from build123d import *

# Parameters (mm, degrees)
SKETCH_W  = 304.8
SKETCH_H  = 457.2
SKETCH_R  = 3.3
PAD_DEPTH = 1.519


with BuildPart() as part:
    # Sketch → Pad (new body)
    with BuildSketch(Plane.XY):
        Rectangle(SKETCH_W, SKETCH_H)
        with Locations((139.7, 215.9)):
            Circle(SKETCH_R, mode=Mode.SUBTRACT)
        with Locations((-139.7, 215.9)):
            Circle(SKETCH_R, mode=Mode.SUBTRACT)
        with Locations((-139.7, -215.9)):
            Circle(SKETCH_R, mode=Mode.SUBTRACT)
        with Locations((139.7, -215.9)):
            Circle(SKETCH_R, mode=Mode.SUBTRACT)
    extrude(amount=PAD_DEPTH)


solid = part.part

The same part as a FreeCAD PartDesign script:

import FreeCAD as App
import Part
import Sketcher
from FreeCAD import Vector
Q = App.Units.Quantity


def add_polygon(sketch, points):
    """Adds a closed chain of lines whose ends are joined by coincident constraints."""
    first, n = sketch.GeometryCount, len(points)
    for a, b in zip(points, points[1:] + points[:1]):
        sketch.addGeometry(Part.LineSegment(App.Vector(*a, 0), App.Vector(*b, 0)), False)
    for i in range(n):
        sketch.addConstraint(Sketcher.Constraint("Coincident", first + i, 2, first + (i + 1) % n, 1))

doc = App.newDocument("Part")
body = doc.addObject("PartDesign::Body", "Body")

# Sketch on XY plane
sketch1 = body.newObject("Sketcher::SketchObject", "Sketch")
sketch1.AttachmentSupport = (doc.getObject("XY_Plane"), [""])
sketch1.MapMode = "FlatFace"
add_polygon(sketch1, [(-152.4, 228.6), (-152.4, -228.6), (152.4, -228.6), (152.4, 228.6)])  # lines 0-3
sketch1.addGeometry(Part.Circle(Vector(-139.7, -215.9, 0), Vector(0, 0, 1), 3.3), False)  # 4
sketch1.addGeometry(Part.Circle(Vector(139.7, -215.9, 0), Vector(0, 0, 1), 3.3), False)  # 5
sketch1.addGeometry(Part.Circle(Vector(-139.7, 215.9, 0), Vector(0, 0, 1), 3.3), False)  # 6
sketch1.addGeometry(Part.Circle(Vector(139.7, 215.9, 0), Vector(0, 0, 1), 3.3), False)  # 7
sketch1.addConstraint([
    Sketcher.Constraint("Vertical", 0),
    Sketcher.Constraint("Horizontal", 1),
    Sketcher.Constraint("Vertical", 2),
    Sketcher.Constraint("Horizontal", 3),
    Sketcher.Constraint("Equal", 4, 5),
    Sketcher.Constraint("Equal", 5, 6),
    Sketcher.Constraint("Equal", 6, 7),
    Sketcher.Constraint("Symmetric", 5, 3, 6, 3, -1, 1),
    Sketcher.Constraint("Symmetric", 4, 3, 7, 3, -1, 1),
    Sketcher.Constraint("Symmetric", 0, 2, 2, 2, -1, 1),
    Sketcher.Constraint("Symmetric", 4, 3, 5, 3, -2),
    Sketcher.Constraint("DistanceX", 1, 1, 1, 2, Q("12 in")),
    Sketcher.Constraint("DistanceY", 0, 2, 0, 1, Q("18 in")),
    Sketcher.Constraint("DistanceX", 4, 3, 5, 3, Q("11 in")),
    Sketcher.Constraint("DistanceY", 4, 3, 6, 3, Q("17 in")),
    Sketcher.Constraint("Diameter", 4, Q("6.6 mm")),
])
pad1 = body.newObject("PartDesign::Pad", "Pad")
pad1.Profile = sketch1
pad1.Length = 1.519

doc.recompute()
